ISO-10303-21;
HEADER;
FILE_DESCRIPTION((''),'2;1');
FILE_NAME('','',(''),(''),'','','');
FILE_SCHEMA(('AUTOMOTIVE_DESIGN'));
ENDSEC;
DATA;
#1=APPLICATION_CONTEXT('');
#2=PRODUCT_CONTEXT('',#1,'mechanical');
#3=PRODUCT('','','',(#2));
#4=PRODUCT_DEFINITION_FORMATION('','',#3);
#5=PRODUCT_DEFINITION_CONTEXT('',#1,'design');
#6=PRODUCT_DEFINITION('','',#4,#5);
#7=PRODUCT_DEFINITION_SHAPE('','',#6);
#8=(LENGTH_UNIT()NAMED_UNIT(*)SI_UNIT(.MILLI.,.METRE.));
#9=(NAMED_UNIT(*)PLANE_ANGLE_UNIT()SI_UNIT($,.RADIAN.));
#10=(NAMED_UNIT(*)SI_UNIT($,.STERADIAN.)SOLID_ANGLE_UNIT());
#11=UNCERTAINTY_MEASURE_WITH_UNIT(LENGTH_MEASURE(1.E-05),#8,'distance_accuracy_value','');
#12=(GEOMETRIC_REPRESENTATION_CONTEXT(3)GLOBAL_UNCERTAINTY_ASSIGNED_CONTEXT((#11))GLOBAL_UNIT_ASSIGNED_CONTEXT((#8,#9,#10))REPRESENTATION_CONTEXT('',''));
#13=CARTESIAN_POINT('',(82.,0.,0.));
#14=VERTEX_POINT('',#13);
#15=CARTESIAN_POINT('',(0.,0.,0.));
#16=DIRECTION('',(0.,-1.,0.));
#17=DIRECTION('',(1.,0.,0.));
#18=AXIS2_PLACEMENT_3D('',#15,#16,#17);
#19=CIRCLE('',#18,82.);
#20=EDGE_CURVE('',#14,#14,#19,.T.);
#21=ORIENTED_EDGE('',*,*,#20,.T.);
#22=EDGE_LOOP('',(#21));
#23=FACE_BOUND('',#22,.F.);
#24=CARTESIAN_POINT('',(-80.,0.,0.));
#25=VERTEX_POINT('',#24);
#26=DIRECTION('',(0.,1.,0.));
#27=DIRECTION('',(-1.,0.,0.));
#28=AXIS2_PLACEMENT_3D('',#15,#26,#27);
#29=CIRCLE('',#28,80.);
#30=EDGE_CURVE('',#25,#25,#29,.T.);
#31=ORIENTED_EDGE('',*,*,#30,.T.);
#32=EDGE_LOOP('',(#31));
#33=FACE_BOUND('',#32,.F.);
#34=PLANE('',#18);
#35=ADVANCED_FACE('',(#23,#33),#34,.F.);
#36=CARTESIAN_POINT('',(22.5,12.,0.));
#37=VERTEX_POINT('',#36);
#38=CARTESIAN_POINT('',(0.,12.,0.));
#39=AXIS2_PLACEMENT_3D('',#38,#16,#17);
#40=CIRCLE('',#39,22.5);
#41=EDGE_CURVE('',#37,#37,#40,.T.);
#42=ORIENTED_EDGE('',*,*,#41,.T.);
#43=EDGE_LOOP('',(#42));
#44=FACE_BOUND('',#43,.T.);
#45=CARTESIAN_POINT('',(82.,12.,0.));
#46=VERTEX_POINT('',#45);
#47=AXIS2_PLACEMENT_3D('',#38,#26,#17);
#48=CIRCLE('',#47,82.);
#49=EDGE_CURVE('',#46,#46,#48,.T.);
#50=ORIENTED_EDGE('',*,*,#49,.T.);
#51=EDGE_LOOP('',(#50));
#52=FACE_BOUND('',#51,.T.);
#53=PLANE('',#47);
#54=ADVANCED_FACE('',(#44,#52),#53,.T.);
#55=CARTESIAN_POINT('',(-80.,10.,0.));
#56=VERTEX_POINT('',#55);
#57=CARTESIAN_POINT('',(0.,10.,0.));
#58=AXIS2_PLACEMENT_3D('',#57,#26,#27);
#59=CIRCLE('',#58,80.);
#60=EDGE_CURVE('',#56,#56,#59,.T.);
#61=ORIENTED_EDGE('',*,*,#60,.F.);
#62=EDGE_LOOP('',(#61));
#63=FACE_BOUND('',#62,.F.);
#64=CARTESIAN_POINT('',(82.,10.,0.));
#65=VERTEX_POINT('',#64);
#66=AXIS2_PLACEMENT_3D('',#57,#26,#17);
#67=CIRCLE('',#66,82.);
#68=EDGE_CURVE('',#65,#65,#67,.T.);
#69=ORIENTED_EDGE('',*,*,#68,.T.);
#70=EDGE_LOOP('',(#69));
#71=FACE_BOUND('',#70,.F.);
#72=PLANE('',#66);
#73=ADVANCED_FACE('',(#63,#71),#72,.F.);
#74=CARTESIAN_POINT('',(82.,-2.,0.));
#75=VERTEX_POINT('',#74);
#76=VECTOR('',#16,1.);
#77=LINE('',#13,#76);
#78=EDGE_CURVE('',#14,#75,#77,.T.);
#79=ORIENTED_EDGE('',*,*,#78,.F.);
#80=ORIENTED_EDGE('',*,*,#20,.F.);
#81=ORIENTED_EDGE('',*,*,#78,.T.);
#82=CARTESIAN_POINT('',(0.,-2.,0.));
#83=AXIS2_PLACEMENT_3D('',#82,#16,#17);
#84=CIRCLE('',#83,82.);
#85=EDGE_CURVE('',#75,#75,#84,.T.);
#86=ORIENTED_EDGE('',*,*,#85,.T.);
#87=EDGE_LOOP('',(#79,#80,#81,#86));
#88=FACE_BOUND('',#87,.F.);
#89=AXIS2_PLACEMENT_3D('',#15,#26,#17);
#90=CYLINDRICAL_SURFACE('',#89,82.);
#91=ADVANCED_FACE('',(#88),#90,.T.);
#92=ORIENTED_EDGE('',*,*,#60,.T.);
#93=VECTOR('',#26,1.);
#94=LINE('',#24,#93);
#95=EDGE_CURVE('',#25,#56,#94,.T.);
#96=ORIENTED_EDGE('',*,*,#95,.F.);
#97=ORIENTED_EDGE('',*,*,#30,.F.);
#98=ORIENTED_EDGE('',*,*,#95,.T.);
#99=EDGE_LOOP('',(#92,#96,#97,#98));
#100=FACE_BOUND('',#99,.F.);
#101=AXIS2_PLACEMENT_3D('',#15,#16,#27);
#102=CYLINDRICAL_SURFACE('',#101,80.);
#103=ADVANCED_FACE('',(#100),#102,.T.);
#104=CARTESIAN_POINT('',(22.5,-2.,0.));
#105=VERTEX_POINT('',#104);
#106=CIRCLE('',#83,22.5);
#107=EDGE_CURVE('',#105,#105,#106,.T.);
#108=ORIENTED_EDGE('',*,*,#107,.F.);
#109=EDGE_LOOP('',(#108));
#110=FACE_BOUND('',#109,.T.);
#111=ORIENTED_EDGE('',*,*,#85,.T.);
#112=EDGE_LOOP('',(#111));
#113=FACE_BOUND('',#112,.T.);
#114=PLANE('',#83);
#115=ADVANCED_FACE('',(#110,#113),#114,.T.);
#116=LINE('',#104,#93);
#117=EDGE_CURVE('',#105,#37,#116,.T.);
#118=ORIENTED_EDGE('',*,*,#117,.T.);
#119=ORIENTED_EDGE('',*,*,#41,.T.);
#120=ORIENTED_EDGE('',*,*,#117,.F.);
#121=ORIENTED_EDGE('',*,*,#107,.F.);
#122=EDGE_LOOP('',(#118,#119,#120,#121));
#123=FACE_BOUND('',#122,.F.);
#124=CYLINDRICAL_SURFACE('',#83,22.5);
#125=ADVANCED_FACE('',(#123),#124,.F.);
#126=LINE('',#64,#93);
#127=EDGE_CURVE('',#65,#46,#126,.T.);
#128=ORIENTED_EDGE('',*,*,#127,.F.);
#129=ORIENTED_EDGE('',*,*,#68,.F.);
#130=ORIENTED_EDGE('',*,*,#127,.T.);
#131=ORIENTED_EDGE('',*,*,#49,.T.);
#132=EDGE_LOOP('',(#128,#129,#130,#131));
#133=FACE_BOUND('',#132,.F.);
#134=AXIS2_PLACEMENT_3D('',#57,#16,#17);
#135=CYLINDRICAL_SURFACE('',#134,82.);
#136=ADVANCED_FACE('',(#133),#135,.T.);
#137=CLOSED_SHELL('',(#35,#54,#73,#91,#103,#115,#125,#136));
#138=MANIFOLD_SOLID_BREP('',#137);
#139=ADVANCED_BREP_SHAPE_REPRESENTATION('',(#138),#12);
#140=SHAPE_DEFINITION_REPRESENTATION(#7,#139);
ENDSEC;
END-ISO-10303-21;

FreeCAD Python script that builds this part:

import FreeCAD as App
import Part
import Sketcher

V = App.Vector

doc = App.newDocument("Part")
params = doc.addObject("Spreadsheet::Sheet", "Params")
for row, (alias, value) in enumerate([
    ("sketch1_diameter", "160 mm"),
    ("pad1_length", "10 mm"),
    ("sketch2_diameter", "164 mm"),
    ("pad2_length", "2 mm"),
    ("sketch3_diameter", "164 mm"),
    ("pad3_length", "2 mm"),
    ("sketch4_diameter", "45 mm"),
    ("pocket1_length", "14 mm"),
], start=1):
    params.set(f"A{row}", alias)
    params.set(f"B{row}", "=" + value)
    params.setAlias(f"B{row}", alias)

body = doc.addObject("PartDesign::Body", "Body")

sketch1 = doc.addObject("Sketcher::SketchObject", "Sketch")
body.addObject(sketch1)
sketch1.AttachmentSupport = (doc.XZ_Plane, [""])
sketch1.MapMode = "FlatFace"
sketch1.addGeometry(Part.Circle(V(0, 0, 0), V(0, 0, 1), 80), False)
sketch1.addConstraint([
    Sketcher.Constraint("Coincident", 0, 3, -1, 1),
    Sketcher.Constraint("Diameter", 0, 160.0),
])
sketch1.setExpression("Constraints[1]", "Params.sketch1_diameter")
pad1 = doc.addObject("PartDesign::Pad", "Pad")
body.addObject(pad1)
pad1.Profile = sketch1
pad1.setExpression("Length", "Params.pad1_length")
pad1.Reversed = True

sketch2 = doc.addObject("Sketcher::SketchObject", "Sketch001")
body.addObject(sketch2)
sketch2.AttachmentSupport = (doc.XZ_Plane, [""])
sketch2.MapMode = "FlatFace"
sketch2.AttachmentOffset = App.Placement(V(0, 0, -10), App.Rotation())
sketch2.addGeometry(Part.Circle(V(0, 0, 0), V(0, 0, 1), 82), False)
sketch2.addConstraint([
    Sketcher.Constraint("Coincident", 0, 3, -1, 1),
    Sketcher.Constraint("Diameter", 0, 164.0),
])
sketch2.setExpression("Constraints[1]", "Params.sketch2_diameter")
pad2 = doc.addObject("PartDesign::Pad", "Pad001")
body.addObject(pad2)
pad2.Profile = sketch2
pad2.setExpression("Length", "Params.pad2_length")
pad2.Reversed = True

sketch3 = doc.addObject("Sketcher::SketchObject", "Sketch002")
body.addObject(sketch3)
sketch3.AttachmentSupport = (doc.XZ_Plane, [""])
sketch3.MapMode = "FlatFace"
sketch3.addGeometry(Part.Circle(V(0, 0, 0), V(0, 0, 1), 82), False)
sketch3.addConstraint([
    Sketcher.Constraint("Coincident", 0, 3, -1, 1),
    Sketcher.Constraint("Diameter", 0, 164.0),
])
sketch3.setExpression("Constraints[1]", "Params.sketch3_diameter")
pad3 = doc.addObject("PartDesign::Pad", "Pad002")
body.addObject(pad3)
pad3.Profile = sketch3
pad3.setExpression("Length", "Params.pad3_length")

sketch4 = doc.addObject("Sketcher::SketchObject", "Sketch003")
body.addObject(sketch4)
sketch4.AttachmentSupport = (doc.XZ_Plane, [""])
sketch4.MapMode = "FlatFace"
sketch4.AttachmentOffset = App.Placement(V(0, 0, 2), App.Rotation())
sketch4.addGeometry(Part.Circle(V(0, 0, 0), V(0, 0, 1), 22.5), False)
sketch4.addConstraint([
    Sketcher.Constraint("Coincident", 0, 3, -1, 1),
    Sketcher.Constraint("Diameter", 0, 45.0),
])
sketch4.setExpression("Constraints[1]", "Params.sketch4_diameter")
pocket1 = doc.addObject("PartDesign::Pocket", "Pocket")
body.addObject(pocket1)
pocket1.Profile = sketch4
pocket1.setExpression("Length", "Params.pocket1_length")

doc.recompute()
